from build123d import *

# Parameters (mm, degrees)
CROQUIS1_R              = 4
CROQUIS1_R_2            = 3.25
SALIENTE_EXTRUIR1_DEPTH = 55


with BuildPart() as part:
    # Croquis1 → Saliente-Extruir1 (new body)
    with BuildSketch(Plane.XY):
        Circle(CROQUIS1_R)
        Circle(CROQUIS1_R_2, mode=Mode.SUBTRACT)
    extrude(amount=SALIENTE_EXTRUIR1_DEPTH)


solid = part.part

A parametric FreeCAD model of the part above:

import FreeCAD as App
import Part
import Sketcher

V = App.Vector
Q = App.Units.Quantity

doc = App.newDocument("Part")
body = doc.addObject("PartDesign::Body", "Body")

sketch1 = doc.addObject("Sketcher::SketchObject", "Sketch")
body.addObject(sketch1)
sketch1.AttachmentSupport = (doc.XY_Plane, [""])
sketch1.MapMode = "FlatFace"
sketch1.addGeometry([
    Part.Circle(V(0, 0, 0), V(0, 0, 1), 4),
    Part.Circle(V(0, 0, 0), V(0, 0, 1), 3.2),
], False)
sketch1.addConstraint([
    Sketcher.Constraint("Coincident", 0, 3, -1, 1),
    Sketcher.Constraint("Coincident", 1, 3, -1, 1),
    Sketcher.Constraint("Diameter", 0, Q("8 mm")),
    Sketcher.Constraint("Diameter", 1, Q("6.5 mm")),
])
pad1 = doc.addObject("PartDesign::Pad", "Pad")
body.addObject(pad1)
pad1.Profile = sketch1
pad1.Length = 55

doc.recompute()
